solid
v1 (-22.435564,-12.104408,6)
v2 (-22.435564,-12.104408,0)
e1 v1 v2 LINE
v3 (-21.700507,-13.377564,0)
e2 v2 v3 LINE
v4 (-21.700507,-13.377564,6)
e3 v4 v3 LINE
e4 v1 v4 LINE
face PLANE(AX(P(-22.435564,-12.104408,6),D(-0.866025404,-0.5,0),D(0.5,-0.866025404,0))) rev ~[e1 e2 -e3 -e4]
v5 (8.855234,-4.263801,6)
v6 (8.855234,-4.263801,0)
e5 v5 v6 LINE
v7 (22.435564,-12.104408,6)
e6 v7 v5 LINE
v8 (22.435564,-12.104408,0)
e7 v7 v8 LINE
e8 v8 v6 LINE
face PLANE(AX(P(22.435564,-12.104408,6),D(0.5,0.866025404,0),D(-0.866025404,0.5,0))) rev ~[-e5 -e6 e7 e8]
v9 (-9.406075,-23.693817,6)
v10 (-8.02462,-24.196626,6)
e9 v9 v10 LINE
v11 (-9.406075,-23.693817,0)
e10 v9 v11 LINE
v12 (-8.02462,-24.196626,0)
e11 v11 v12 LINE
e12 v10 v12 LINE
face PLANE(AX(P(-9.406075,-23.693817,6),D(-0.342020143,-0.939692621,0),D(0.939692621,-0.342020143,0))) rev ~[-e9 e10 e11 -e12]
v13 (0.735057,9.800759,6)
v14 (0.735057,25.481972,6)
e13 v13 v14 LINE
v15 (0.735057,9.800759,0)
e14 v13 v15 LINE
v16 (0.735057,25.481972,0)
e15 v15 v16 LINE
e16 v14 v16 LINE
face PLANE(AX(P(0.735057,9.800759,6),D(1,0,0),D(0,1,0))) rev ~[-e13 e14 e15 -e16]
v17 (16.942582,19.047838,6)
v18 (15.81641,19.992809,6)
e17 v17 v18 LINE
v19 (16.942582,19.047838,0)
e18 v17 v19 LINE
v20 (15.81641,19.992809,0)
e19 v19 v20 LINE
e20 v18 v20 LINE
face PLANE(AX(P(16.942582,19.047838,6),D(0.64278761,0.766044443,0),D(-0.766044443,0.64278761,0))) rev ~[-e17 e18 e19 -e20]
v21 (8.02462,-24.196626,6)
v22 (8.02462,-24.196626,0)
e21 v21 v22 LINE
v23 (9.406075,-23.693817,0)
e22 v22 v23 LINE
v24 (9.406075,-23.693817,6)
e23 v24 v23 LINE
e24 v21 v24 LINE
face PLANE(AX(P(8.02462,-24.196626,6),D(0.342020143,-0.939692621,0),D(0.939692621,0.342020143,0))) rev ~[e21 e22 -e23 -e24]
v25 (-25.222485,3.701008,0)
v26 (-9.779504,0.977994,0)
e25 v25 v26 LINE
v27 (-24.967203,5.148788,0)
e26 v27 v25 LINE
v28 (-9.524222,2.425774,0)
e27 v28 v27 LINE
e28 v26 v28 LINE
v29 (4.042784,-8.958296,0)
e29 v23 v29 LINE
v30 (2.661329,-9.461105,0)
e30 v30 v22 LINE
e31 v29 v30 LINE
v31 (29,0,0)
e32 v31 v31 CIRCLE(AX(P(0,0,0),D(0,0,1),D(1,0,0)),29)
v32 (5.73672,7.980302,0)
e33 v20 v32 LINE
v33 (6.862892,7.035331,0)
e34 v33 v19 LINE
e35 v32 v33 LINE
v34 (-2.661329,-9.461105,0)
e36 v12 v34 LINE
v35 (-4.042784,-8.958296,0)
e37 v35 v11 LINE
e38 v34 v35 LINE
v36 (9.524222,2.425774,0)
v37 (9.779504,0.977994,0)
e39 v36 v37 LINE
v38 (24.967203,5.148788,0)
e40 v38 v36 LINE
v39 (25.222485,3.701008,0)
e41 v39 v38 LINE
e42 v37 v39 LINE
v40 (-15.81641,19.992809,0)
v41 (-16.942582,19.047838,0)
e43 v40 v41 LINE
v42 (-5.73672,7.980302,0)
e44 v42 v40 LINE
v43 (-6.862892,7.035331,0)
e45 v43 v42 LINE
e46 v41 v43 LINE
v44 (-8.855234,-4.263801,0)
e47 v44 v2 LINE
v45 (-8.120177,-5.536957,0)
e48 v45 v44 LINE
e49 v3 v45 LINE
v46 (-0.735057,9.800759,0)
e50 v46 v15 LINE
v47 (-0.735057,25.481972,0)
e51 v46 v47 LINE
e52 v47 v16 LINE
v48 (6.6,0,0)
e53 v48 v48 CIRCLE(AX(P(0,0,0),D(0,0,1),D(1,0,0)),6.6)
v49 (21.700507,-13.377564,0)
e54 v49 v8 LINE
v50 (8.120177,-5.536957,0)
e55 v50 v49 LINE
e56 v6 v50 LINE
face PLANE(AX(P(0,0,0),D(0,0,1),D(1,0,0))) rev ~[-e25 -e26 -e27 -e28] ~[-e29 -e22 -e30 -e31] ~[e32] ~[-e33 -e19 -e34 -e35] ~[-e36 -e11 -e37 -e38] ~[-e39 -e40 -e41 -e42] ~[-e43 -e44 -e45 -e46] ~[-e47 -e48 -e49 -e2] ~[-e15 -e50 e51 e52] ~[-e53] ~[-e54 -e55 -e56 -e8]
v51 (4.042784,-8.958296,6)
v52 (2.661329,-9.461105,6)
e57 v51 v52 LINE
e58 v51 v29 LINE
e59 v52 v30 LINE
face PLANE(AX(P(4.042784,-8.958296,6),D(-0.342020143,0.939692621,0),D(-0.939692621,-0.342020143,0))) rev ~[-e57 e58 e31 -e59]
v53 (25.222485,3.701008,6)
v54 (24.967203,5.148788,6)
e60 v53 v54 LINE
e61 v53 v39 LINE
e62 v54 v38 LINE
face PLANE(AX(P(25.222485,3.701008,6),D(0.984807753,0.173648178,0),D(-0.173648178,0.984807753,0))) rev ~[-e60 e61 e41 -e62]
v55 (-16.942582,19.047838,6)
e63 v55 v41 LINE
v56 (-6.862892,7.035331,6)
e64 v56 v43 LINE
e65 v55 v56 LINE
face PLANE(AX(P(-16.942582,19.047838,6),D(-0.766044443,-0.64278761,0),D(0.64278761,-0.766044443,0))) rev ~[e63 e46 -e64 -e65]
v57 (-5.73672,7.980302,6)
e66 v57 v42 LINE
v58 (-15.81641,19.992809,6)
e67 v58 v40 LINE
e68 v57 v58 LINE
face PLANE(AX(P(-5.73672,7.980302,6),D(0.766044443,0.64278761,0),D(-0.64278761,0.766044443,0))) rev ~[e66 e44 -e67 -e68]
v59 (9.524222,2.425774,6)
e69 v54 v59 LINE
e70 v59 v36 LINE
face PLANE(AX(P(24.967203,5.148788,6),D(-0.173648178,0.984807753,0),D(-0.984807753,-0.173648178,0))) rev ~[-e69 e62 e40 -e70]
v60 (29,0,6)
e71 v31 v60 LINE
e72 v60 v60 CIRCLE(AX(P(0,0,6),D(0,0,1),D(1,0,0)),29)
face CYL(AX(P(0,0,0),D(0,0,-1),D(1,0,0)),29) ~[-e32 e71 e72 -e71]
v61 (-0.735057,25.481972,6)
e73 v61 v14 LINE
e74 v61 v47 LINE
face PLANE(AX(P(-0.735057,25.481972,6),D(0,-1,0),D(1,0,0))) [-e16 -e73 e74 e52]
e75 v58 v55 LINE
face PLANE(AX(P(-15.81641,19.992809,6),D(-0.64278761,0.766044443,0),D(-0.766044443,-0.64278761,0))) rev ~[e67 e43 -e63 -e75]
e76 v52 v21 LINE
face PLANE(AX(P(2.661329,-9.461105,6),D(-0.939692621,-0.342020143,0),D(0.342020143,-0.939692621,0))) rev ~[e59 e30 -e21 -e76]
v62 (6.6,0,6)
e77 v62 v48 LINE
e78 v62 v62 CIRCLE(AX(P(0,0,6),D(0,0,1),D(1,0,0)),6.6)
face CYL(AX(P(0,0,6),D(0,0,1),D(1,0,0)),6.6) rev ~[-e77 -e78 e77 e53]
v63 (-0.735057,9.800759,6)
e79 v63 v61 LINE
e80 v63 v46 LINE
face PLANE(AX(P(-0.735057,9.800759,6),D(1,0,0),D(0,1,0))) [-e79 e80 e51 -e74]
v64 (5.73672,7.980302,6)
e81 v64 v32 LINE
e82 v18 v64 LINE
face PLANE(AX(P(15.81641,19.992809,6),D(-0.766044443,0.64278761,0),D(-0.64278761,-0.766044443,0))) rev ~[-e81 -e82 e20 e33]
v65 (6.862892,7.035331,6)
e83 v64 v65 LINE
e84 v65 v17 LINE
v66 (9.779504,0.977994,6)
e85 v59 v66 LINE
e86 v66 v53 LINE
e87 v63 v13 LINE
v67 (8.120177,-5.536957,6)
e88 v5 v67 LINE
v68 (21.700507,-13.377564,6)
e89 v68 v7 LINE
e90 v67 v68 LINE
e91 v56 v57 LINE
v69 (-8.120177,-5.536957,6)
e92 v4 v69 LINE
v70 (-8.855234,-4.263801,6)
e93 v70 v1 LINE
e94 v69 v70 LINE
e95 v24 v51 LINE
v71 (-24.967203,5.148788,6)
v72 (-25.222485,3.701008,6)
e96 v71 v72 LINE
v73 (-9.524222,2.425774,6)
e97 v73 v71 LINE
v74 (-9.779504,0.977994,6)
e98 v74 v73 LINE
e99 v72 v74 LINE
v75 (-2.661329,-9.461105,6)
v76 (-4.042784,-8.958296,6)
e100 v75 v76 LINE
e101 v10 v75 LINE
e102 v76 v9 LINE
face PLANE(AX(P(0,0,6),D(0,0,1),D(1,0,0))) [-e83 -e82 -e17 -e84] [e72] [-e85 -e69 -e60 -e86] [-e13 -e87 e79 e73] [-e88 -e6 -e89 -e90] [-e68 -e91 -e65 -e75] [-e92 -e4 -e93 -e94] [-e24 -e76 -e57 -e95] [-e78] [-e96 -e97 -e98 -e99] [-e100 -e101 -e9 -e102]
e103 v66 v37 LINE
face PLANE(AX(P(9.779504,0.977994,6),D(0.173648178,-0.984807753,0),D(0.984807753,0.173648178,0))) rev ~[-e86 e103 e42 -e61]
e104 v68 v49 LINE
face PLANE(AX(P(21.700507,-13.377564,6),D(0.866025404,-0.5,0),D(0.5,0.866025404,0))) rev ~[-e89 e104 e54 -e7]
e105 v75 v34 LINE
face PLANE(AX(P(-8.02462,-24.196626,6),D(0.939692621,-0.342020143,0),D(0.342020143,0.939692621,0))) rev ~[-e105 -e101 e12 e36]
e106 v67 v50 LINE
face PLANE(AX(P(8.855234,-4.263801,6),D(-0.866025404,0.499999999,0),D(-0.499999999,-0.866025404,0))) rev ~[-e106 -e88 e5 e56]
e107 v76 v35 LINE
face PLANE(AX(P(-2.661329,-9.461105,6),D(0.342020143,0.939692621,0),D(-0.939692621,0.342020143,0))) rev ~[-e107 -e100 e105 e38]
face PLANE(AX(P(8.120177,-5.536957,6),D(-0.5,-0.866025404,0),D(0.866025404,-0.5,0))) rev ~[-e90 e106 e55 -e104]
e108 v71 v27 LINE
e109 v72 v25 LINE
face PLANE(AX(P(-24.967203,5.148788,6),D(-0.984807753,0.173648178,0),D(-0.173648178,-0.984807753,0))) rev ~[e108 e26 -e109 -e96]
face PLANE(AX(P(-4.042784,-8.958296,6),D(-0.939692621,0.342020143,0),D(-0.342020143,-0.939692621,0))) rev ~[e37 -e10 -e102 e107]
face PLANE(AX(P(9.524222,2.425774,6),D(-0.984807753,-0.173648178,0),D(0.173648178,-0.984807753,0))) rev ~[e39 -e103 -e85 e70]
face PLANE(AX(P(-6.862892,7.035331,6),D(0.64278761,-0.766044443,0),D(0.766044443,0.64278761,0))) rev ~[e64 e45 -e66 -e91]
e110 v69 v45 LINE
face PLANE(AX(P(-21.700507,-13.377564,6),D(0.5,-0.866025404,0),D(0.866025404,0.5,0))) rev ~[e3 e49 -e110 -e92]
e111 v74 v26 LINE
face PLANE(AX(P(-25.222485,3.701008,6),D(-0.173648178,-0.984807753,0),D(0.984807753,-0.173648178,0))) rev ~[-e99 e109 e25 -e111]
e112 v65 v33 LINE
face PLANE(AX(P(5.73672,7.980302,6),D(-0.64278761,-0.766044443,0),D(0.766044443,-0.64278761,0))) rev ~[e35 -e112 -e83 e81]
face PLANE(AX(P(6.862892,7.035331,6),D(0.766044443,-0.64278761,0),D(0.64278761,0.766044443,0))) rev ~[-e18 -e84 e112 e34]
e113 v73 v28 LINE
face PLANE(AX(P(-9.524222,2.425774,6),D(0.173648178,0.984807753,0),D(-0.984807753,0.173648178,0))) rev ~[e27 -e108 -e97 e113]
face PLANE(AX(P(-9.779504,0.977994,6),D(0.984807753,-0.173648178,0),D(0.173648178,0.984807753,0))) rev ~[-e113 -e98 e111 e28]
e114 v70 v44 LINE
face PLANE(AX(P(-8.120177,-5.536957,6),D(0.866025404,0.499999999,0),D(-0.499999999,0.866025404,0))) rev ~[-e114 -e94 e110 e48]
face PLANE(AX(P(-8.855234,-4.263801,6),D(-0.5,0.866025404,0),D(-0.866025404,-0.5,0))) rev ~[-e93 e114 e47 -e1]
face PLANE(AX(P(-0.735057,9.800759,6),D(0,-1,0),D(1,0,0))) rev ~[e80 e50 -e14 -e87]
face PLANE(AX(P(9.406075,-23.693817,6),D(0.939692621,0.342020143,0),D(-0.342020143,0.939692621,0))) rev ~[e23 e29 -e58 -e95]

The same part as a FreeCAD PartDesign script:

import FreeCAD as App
import Part
import Sketcher

V = App.Vector
Q = App.Units.Quantity


def add_polygon(sketch, points):
    """Adds a closed chain of lines whose ends are joined by coincident constraints."""
    first, n = sketch.GeometryCount, len(points)
    for a, b in zip(points, points[1:] + points[:1]):
        sketch.addGeometry(Part.LineSegment(App.Vector(*a, 0), App.Vector(*b, 0)), False)
    for i in range(n):
        sketch.addConstraint(Sketcher.Constraint("Coincident", first + i, 2, first + (i + 1) % n, 1))

doc = App.newDocument("Part")
params = doc.addObject("Spreadsheet::Sheet", "Params")
for row, (alias, value) in enumerate([
    ("sketch1_diameter", "58 mm"),
    ("pad1_length", "6 mm"),
    ("sketch2_diameter", "13.2 mm"),
], start=1):
    params.set(f"A{row}", alias)
    params.set(f"B{row}", "=" + value)
    params.setAlias(f"B{row}", alias)

body = doc.addObject("PartDesign::Body", "Body")

sketch1 = doc.addObject("Sketcher::SketchObject", "Sketch")
body.addObject(sketch1)
sketch1.AttachmentSupport = (doc.XY_Plane, [""])
sketch1.MapMode = "FlatFace"
sketch1.addGeometry(Part.Circle(V(0, 0, 0), V(0, 0, 1), 29), False)
sketch1.addConstraint([
    Sketcher.Constraint("Coincident", 0, 3, -1, 1),
    Sketcher.Constraint("Diameter", 0, 58.0),
])
sketch1.setExpression("Constraints[1]", "Params.sketch1_diameter")
pad1 = doc.addObject("PartDesign::Pad", "Pad")
body.addObject(pad1)
pad1.Profile = sketch1
pad1.setExpression("Length", "Params.pad1_length")

sketch2 = doc.addObject("Sketcher::SketchObject", "Sketch001")
body.addObject(sketch2)
sketch2.AttachmentSupport = (doc.XY_Plane, [""])
sketch2.MapMode = "FlatFace"
sketch2.AttachmentOffset = App.Placement(V(0, 0, 6), App.Rotation())
sketch2.addGeometry(Part.Circle(V(0, 0, 0), V(0, 0, 1), 7), False)
sketch2.addConstraint([
    Sketcher.Constraint("Coincident", 0, 3, -1, 1),
    Sketcher.Constraint("Diameter", 0, 13.2),
])
sketch2.setExpression("Constraints[1]", "Params.sketch2_diameter")
pocket1 = doc.addObject("PartDesign::Pocket", "Pocket")
body.addObject(pocket1)
pocket1.Profile = sketch2
pocket1.Type = "ThroughAll"

sketch3 = doc.addObject("Sketcher::SketchObject", "Sketch002")
body.addObject(sketch3)
sketch3.AttachmentSupport = (doc.XY_Plane, [""])
sketch3.MapMode = "FlatFace"
sketch3.AttachmentOffset = App.Placement(V(0, 0, 6), App.Rotation())
add_polygon(sketch3, [(15.8, 20), (5.7, 8), (6.9, 7), (16.9, 19)])
add_polygon(sketch3, [(-0.7, 25.5), (-0.7, 9.8), (0.7, 9.8), (0.7, 25.5)])
add_polygon(sketch3, [(25, 5.1), (9.5, 2.4), (9.8, 1), (25.2, 3.7)])
add_polygon(sketch3, [(22.4, -12.1), (8.9, -4.3), (8.1, -5.5), (21.7, -13.4)])
add_polygon(sketch3, [(9.4, -23.7), (4, -9), (2.7, -9.5), (8, -24.2)])
add_polygon(sketch3, [(-8, -24.2), (-2.7, -9.5), (-4, -9), (-9.4, -23.7)])
add_polygon(sketch3, [(-21.7, -13.4), (-8.1, -5.5), (-8.9, -4.3), (-22.4, -12.1)])
add_polygon(sketch3, [(-25.2, 3.7), (-9.8, 1), (-9.5, 2.4), (-25, 5.1)])
add_polygon(sketch3, [(-16.9, 19), (-6.9, 7), (-5.7, 8), (-15.8, 20)])
sketch3.addConstraint([
    Sketcher.Constraint("Vertical", 4),
    Sketcher.Constraint("Horizontal", 5),
    Sketcher.Constraint("Vertical", 6),
    Sketcher.Constraint("Horizontal", 7),
    Sketcher.Constraint("Symmetric", 17, 2, 20, 2, -2),
    Sketcher.Constraint("Symmetric", 16, 2, 21, 2, -2),
    Sketcher.Constraint("Symmetric", 19, 2, 22, 2, -2),
    Sketcher.Constraint("Symmetric", 18, 2, 23, 2, -2),
    Sketcher.Constraint("Symmetric", 13, 2, 24, 2, -2),
    Sketcher.Constraint("Symmetric", 12, 2, 25, 2, -2),
    Sketcher.Constraint("Symmetric", 15, 2, 26, 2, -2),
    Sketcher.Constraint("Symmetric", 14, 2, 27, 2, -2),
    Sketcher.Constraint("Symmetric", 9, 2, 28, 2, -2),
    Sketcher.Constraint("Symmetric", 8, 2, 29, 2, -2),
    Sketcher.Constraint("Symmetric", 11, 2, 30, 2, -2),
    Sketcher.Constraint("Symmetric", 10, 2, 31, 2, -2),
    Sketcher.Constraint("Symmetric", 1, 2, 32, 2, -2),
    Sketcher.Constraint("Symmetric", 0, 2, 33, 2, -2),
    Sketcher.Constraint("Symmetric", 3, 2, 34, 2, -2),
    Sketcher.Constraint("Symmetric", 2, 2, 35, 2, -2),
    Sketcher.Constraint("Perpendicular", 0, 1),
    Sketcher.Constraint("Perpendicular", 1, 2),
    Sketcher.Constraint("Perpendicular", 2, 3),
    Sketcher.Constraint("Perpendicular", 8, 9),
    Sketcher.Constraint("Perpendicular", 9, 10),
    Sketcher.Constraint("Perpendicular", 10, 11),
    Sketcher.Constraint("Perpendicular", 12, 13),
    Sketcher.Constraint("Perpendicular", 13, 14),
    Sketcher.Constraint("Perpendicular", 14, 15),
    Sketcher.Constraint("Perpendicular", 16, 17),
    Sketcher.Constraint("Perpendicular", 17, 18),
    Sketcher.Constraint("Perpendicular", 18, 19),
    Sketcher.Constraint("Equal", 2, 8),
    Sketcher.Constraint("Equal", 3, 9),
    Sketcher.Constraint("Equal", 10, 12),
    Sketcher.Constraint("Equal", 11, 13),
    Sketcher.Constraint("Equal", 14, 16),
    Sketcher.Constraint("Equal", 15, 17),
    Sketcher.Constraint("Angle", 0, Q("-130 deg")),
    Sketcher.Constraint("Angle", 8, Q("-170 deg")),
    Sketcher.Constraint("Angle", 12, Q("150 deg")),
    Sketcher.Constraint("Angle", 16, Q("110 deg")),
    Sketcher.Constraint("DistanceY", 12, 2, -1, 1, 4.263801),
    Sketcher.Constraint("DistanceX", 0, 2, 8, 2, 3.787502),
    Sketcher.Constraint("DistanceY", 10, 2, 3, 2, 16.2918),
    Sketcher.Constraint("DistanceX", 9, 2, 11, 2, 15.187698),
    Sketcher.Constraint("DistanceY", 17, 2, 9, 2, 10.439099),
    Sketcher.Constraint("DistanceX", 5, 1, 5, 2, 1.470114),
    Sketcher.Constraint("DistanceY", 4, 2, 4, 1, 15.681214),
    Sketcher.Constraint("DistanceX", -1, 1, 0, 2, 5.73672),
    Sketcher.Constraint("DistanceY", -1, 1, 1, 2, 7.035331),
    Sketcher.Constraint("DistanceX", -1, 1, 3, 2, 15.81641),
    Sketcher.Constraint("DistanceY", -1, 1, 4, 2, 9.800759),
    Sketcher.Constraint("DistanceX", -1, 1, 17, 2, 2.661329),
    Sketcher.Constraint("DistanceX", 4, 2, 1, 2, 7.597949),
    Sketcher.Constraint("DistanceX", 12, 2, 9, 2, 0.92427),
])
pocket2 = doc.addObject("PartDesign::Pocket", "Pocket001")
body.addObject(pocket2)
pocket2.Profile = sketch3
pocket2.Type = "ThroughAll"

doc.recompute()
